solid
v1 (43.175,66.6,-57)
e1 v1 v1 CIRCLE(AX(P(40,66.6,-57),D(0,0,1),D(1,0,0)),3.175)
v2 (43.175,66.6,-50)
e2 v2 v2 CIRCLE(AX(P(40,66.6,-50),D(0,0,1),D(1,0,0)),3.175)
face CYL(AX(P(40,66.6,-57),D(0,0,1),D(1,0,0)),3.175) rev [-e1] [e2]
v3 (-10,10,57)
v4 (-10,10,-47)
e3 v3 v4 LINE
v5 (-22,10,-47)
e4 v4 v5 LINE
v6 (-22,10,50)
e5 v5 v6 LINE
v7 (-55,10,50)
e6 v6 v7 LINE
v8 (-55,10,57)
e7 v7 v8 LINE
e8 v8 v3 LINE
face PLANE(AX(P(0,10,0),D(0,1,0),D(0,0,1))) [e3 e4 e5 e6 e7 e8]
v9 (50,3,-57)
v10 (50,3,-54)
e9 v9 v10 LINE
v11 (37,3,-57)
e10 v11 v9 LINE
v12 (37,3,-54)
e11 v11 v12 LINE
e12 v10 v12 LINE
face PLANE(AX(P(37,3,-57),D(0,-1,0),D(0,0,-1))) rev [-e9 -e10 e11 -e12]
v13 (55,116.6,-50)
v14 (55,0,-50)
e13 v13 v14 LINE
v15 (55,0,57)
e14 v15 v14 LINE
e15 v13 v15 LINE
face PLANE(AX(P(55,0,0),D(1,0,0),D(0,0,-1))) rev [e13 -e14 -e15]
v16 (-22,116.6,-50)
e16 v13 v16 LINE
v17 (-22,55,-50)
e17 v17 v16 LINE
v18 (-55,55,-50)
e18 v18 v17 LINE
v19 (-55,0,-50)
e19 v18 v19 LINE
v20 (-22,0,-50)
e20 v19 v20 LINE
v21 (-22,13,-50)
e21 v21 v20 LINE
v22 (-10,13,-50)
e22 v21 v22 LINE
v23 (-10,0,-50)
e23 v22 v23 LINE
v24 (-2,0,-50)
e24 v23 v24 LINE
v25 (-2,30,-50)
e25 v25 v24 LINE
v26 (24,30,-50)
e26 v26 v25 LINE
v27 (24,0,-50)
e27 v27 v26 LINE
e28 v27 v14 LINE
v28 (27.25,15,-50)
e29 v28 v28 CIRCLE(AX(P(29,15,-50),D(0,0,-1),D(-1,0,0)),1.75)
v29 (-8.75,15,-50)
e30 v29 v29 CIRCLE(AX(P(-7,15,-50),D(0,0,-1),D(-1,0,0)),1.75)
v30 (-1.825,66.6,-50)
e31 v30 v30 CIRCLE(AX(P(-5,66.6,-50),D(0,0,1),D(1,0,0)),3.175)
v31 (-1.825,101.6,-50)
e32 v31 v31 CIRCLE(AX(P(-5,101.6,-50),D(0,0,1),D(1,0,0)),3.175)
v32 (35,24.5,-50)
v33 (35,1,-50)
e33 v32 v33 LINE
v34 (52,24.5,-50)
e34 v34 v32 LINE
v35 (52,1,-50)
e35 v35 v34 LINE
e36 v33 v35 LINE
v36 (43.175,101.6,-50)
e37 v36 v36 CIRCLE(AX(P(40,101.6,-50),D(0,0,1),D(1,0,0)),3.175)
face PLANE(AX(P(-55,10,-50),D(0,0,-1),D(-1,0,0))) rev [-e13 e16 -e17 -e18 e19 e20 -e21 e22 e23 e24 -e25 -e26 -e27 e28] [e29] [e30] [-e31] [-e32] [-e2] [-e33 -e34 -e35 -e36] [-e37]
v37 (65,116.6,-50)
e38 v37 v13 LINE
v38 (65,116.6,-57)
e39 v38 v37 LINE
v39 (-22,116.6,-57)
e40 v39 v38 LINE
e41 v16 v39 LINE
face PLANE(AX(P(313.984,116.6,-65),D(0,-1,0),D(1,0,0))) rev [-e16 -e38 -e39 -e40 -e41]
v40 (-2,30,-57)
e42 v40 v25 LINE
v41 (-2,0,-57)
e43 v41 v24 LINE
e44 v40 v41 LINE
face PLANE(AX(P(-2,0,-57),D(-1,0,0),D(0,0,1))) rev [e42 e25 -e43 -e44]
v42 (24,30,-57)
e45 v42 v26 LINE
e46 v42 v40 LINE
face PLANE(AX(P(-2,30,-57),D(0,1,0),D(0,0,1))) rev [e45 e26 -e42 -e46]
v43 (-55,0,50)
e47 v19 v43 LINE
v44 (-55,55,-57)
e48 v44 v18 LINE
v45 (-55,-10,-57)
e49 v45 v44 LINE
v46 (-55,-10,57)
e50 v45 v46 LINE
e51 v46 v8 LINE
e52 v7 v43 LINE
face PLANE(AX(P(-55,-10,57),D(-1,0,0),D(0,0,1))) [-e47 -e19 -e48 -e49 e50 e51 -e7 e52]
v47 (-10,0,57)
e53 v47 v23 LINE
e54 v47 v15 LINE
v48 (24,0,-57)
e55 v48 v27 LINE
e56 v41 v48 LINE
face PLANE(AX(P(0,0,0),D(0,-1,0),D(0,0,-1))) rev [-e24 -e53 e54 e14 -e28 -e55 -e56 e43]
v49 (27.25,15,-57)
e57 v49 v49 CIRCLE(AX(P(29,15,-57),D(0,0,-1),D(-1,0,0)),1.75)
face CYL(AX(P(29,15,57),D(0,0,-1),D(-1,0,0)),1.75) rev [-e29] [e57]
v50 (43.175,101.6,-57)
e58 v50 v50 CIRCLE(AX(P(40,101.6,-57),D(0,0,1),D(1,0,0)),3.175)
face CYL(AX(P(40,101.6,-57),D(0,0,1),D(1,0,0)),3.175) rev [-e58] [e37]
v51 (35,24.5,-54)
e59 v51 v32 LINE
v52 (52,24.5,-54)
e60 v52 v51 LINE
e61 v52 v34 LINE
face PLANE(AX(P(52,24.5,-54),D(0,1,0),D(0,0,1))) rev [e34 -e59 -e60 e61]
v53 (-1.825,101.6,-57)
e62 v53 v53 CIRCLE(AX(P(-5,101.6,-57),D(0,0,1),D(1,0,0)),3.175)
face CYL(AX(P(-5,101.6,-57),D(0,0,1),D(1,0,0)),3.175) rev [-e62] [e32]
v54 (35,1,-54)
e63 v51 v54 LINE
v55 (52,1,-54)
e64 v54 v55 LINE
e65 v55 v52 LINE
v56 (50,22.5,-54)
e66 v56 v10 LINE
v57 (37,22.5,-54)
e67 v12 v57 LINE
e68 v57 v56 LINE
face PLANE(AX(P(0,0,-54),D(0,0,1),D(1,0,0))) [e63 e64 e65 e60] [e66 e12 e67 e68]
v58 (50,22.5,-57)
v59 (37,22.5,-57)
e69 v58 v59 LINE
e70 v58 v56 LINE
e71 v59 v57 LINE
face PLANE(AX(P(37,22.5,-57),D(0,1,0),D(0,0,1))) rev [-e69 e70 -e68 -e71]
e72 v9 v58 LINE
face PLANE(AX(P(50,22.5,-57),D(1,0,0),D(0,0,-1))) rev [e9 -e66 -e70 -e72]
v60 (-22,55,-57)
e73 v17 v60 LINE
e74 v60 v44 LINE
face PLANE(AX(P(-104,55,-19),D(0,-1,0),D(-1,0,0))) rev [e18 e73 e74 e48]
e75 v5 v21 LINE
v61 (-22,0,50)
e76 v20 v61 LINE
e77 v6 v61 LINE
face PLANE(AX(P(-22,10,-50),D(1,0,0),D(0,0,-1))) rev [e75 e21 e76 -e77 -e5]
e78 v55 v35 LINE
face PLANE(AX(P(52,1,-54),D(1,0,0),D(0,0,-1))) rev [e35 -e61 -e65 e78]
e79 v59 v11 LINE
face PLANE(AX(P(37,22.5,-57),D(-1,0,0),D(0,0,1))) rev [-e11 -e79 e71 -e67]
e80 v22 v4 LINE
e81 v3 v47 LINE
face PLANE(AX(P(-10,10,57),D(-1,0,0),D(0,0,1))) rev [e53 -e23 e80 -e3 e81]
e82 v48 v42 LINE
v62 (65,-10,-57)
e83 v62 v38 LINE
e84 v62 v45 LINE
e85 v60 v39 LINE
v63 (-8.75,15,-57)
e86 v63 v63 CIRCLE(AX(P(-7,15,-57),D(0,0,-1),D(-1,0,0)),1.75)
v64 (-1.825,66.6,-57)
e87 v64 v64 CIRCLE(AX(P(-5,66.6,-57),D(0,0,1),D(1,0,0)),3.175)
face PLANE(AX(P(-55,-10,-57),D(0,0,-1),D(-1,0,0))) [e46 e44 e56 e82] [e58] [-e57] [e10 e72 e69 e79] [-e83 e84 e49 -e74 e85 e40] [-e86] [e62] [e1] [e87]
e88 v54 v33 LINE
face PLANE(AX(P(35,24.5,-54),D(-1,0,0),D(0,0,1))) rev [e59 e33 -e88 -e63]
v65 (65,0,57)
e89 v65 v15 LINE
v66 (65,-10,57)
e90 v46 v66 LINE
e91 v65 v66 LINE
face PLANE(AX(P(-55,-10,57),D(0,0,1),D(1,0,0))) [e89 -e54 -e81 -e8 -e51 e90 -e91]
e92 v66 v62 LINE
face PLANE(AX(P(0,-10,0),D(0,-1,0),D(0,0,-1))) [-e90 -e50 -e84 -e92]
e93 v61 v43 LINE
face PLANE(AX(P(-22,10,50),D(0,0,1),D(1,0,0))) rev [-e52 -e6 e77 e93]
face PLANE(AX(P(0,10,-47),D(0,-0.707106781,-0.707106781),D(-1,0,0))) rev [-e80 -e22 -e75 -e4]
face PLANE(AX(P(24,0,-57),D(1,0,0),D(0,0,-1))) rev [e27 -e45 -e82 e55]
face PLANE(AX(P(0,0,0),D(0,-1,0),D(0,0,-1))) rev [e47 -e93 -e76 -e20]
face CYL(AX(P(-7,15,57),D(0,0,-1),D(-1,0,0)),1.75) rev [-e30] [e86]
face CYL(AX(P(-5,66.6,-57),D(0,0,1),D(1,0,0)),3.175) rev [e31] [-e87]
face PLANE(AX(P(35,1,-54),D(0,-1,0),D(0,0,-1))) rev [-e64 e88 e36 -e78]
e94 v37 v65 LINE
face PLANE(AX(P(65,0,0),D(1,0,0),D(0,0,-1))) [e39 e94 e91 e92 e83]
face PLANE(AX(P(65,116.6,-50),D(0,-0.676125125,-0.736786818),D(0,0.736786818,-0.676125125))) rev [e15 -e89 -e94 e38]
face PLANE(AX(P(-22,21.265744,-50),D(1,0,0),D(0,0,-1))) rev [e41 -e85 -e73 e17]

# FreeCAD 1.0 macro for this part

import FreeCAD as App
import Part
import Sketcher


def edges_at(feature, points):
    """Names of the edges that pass closest to the given points."""
    edges = feature.Shape.Edges
    near = lambda p: min(range(len(edges)), key=lambda i: edges[i].distToShape(Part.Vertex(*p))[0])
    return sorted({f"Edge{near(p) + 1}" for p in points})


def add_polygon(sketch, points):
    """Adds a closed chain of lines whose ends are joined by coincident constraints."""
    first, n = sketch.GeometryCount, len(points)
    for a, b in zip(points, points[1:] + points[:1]):
        sketch.addGeometry(Part.LineSegment(App.Vector(*a, 0), App.Vector(*b, 0)), False)
    for i in range(n):
        sketch.addConstraint(Sketcher.Constraint("Coincident", first + i, 2, first + (i + 1) % n, 1))

doc = App.newDocument("Part")
params = doc.addObject("Spreadsheet::Sheet", "Params")
for row, (alias, value) in enumerate([
    ("sketch1_width", "110 mm"),
    ("sketch1_height", "114 mm"),
    ("pad1_length", "10 mm"),
    ("sketch2_width", "45 mm"),
    ("sketch2_width2", "33 mm"),
    ("sketch2_height", "7 mm"),
    ("sketch2_height2", "114 mm"),
    ("pad2_length", "10 mm"),
    ("sketch3_width", "110 mm"),
    ("sketch3_height", "7 mm"),
    ("pad3_length", "116.6 mm"),
    ("sketch4_width", "33 mm"),
    ("sketch4_height", "7 mm"),
    ("pocket1_length", "61.6 mm"),
    ("sketch5_width", "26 mm"),
    ("sketch5_height", "30 mm"),
    ("sketch6_width", "13 mm"),
    ("sketch6_height", "19.5 mm"),
    ("sketch7_width", "17 mm"),
    ("sketch7_height", "23.5 mm"),
    ("pocket4_length", "4 mm"),
    ("sketch8_diameter", "6.35 mm"),
    ("sketch9_width", "10 mm"),
    ("sketch9_height", "7 mm"),
    ("sketch9_height2", "114 mm"),
    ("sketch9_width2", "126.6 mm"),
    ("pad4_length", "10 mm"),
    ("sketch10_diameter", "3.5 mm"),
    ("chamfer_size", "3 mm"),
], start=1):
    params.set(f"A{row}", alias)
    params.set(f"B{row}", "=" + value)
    params.setAlias(f"B{row}", alias)

body = doc.addObject("PartDesign::Body", "Body")

# Sketch on XZ plane
sketch1 = body.newObject("Sketcher::SketchObject", "Sketch")
sketch1.AttachmentSupport = (doc.getObject("XZ_Plane"), [""])
sketch1.MapMode = "FlatFace"
add_polygon(sketch1, [(-55, -57), (-55, 57), (55, 57), (55, -57)])  # lines 0-3
sketch1.addConstraint([
    Sketcher.Constraint("Vertical", 0),
    Sketcher.Constraint("Horizontal", 1),
    Sketcher.Constraint("Vertical", 2),
    Sketcher.Constraint("Horizontal", 3),
    Sketcher.Constraint("Symmetric", 0, 2, 2, 2, -1, 1),
    Sketcher.Constraint("DistanceX", 1, 1, 1, 2, 110.0),
    Sketcher.Constraint("DistanceY", 0, 1, 0, 2, 114.0),
])
sketch1.setExpression("Constraints[9]", "Params.sketch1_width")
sketch1.setExpression("Constraints[10]", "Params.sketch1_height")
pad1 = body.newObject("PartDesign::Pad", "Pad")
pad1.Profile = sketch1
pad1.setExpression("Length", "Params.pad1_length")

# Sketch on XZ plane
sketch2 = body.newObject("Sketcher::SketchObject", "Sketch001")
sketch2.AttachmentSupport = (doc.getObject("XZ_Plane"), [""])
sketch2.MapMode = "FlatFace"
add_polygon(sketch2, [(-55, 50), (-55, 57), (-10, 57), (-10, -57), (-55, -57), (-55, -50), (-22, -50), (-22, 50)])  # lines 0-7
sketch2.addConstraint([
    Sketcher.Constraint("Vertical", 0),
    Sketcher.Constraint("Horizontal", 1),
    Sketcher.Constraint("Vertical", 2),
    Sketcher.Constraint("Horizontal", 3),
    Sketcher.Constraint("Vertical", 4),
    Sketcher.Constraint("Horizontal", 5),
    Sketcher.Constraint("Vertical", 6),
    Sketcher.Constraint("Horizontal", 7),
    Sketcher.Constraint("Symmetric", 0, 2, 3, 2, -1),
    Sketcher.Constraint("Equal", 0, 4),
    Sketcher.Constraint("DistanceX", 1, 1, 1, 2, 45.0),
    Sketcher.Constraint("DistanceX", 5, 1, 5, 2, 33.0),
    Sketcher.Constraint("DistanceY", 0, 1, 0, 2, 7.0),
    Sketcher.Constraint("DistanceY", 2, 2, 2, 1, 114.0),
    Sketcher.Constraint("DistanceX", 0, 2, -1, 1, 55.0),
])
sketch2.setExpression("Constraints[18]", "Params.sketch2_width")
sketch2.setExpression("Constraints[19]", "Params.sketch2_width2")
sketch2.setExpression("Constraints[20]", "Params.sketch2_height")
sketch2.setExpression("Constraints[21]", "Params.sketch2_height2")
pad2 = body.newObject("PartDesign::Pad", "Pad001")
pad2.Profile = sketch2
pad2.setExpression("Length", "Params.pad2_length")
pad2.Reversed = True

# Sketch on XZ plane
sketch3 = body.newObject("Sketcher::SketchObject", "Sketch002")
sketch3.AttachmentSupport = (doc.getObject("XZ_Plane"), [""])
sketch3.MapMode = "FlatFace"
add_polygon(sketch3, [(-55, -57), (-55, -50), (55, -50), (55, -57)])  # lines 0-3
sketch3.addConstraint([
    Sketcher.Constraint("Vertical", 0),
    Sketcher.Constraint("Horizontal", 1),
    Sketcher.Constraint("Vertical", 2),
    Sketcher.Constraint("Horizontal", 3),
    Sketcher.Constraint("DistanceX", 1, 1, 1, 2, 110.0),
    Sketcher.Constraint("DistanceY", 0, 1, 0, 2, 7.0),
    Sketcher.Constraint("DistanceX", 0, 2, -1, 1, 55.0),
    Sketcher.Constraint("DistanceY", 0, 2, -1, 1, 50.0),
])
sketch3.setExpression("Constraints[8]", "Params.sketch3_width")
sketch3.setExpression("Constraints[9]", "Params.sketch3_height")
pad3 = body.newObject("PartDesign::Pad", "Pad002")
pad3.Profile = sketch3
pad3.setExpression("Length", "Params.pad3_length")
pad3.Reversed = True

# Sketch on XZ plane
sketch4 = body.newObject("Sketcher::SketchObject", "Sketch003")
sketch4.AttachmentSupport = (doc.getObject("XZ_Plane"), [""])
sketch4.MapMode = "FlatFace"
sketch4.AttachmentOffset = App.Placement(App.Vector(0, 0, -116.6), App.Rotation())
add_polygon(sketch4, [(-55, -57), (-55, -50), (-22, -50), (-22, -57)])  # lines 0-3
sketch4.addConstraint([
    Sketcher.Constraint("Vertical", 0),
    Sketcher.Constraint("Horizontal", 1),
    Sketcher.Constraint("Vertical", 2),
    Sketcher.Constraint("Horizontal", 3),
    Sketcher.Constraint("DistanceX", 1, 1, 1, 2, 33.0),
    Sketcher.Constraint("DistanceY", 0, 1, 0, 2, 7.0),
    Sketcher.Constraint("DistanceX", 0, 2, -1, 1, 55.0),
    Sketcher.Constraint("DistanceY", 0, 2, -1, 1, 50.0),
])
sketch4.setExpression("Constraints[8]", "Params.sketch4_width")
sketch4.setExpression("Constraints[9]", "Params.sketch4_height")
pocket1 = body.newObject("PartDesign::Pocket", "Pocket")
pocket1.Profile = sketch4
pocket1.setExpression("Length", "Params.pocket1_length")
pocket1.Reversed = True

# Sketch on XY plane
sketch5 = body.newObject("Sketcher::SketchObject", "Sketch004")
sketch5.AttachmentSupport = (doc.getObject("XY_Plane"), [""])
sketch5.MapMode = "FlatFace"
sketch5.AttachmentOffset = App.Placement(App.Vector(0, 0, -50), App.Rotation())
add_polygon(sketch5, [(-2, 30), (-2, 0), (24, 0), (24, 30)])  # lines 0-3
sketch5.addConstraint([
    Sketcher.Constraint("Vertical", 0),
    Sketcher.Constraint("Horizontal", 1),
    Sketcher.Constraint("Vertical", 2),
    Sketcher.Constraint("Horizontal", 3),
    Sketcher.Constraint("PointOnObject", 0, 2, -1),
    Sketcher.Constraint("DistanceX", 1, 1, 1, 2, 26.0),
    Sketcher.Constraint("DistanceY", 0, 2, 0, 1, 30.0),
    Sketcher.Constraint("DistanceX", 0, 2, -1, 1, 2.0),
])
sketch5.setExpression("Constraints[9]", "Params.sketch5_width")
sketch5.setExpression("Constraints[10]", "Params.sketch5_height")
pocket2 = body.newObject("PartDesign::Pocket", "Pocket001")
pocket2.Profile = sketch5
pocket2.Type = "ThroughAll"

# Sketch on XY plane
sketch6 = body.newObject("Sketcher::SketchObject", "Sketch005")
sketch6.AttachmentSupport = (doc.getObject("XY_Plane"), [""])
sketch6.MapMode = "FlatFace"
sketch6.AttachmentOffset = App.Placement(App.Vector(0, 0, -50), App.Rotation())
add_polygon(sketch6, [(37, 22), (37, 3), (50, 3), (50, 22)])  # lines 0-3
sketch6.addConstraint([
    Sketcher.Constraint("Vertical", 0),
    Sketcher.Constraint("Horizontal", 1),
    Sketcher.Constraint("Vertical", 2),
    Sketcher.Constraint("Horizontal", 3),
    Sketcher.Constraint("DistanceX", 1, 1, 1, 2, 13.0),
    Sketcher.Constraint("DistanceY", 0, 2, 0, 1, 19.5),
    Sketcher.Constraint("DistanceX", -1, 1, 0, 2, 37.0),
    Sketcher.Constraint("DistanceY", -1, 1, 0, 2, 3.0),
])
sketch6.setExpression("Constraints[8]", "Params.sketch6_width")
sketch6.setExpression("Constraints[9]", "Params.sketch6_height")
pocket3 = body.newObject("PartDesign::Pocket", "Pocket002")
pocket3.Profile = sketch6
pocket3.Type = "ThroughAll"

# Sketch on XY plane
sketch7 = body.newObject("Sketcher::SketchObject", "Sketch006")
sketch7.AttachmentSupport = (doc.getObject("XY_Plane"), [""])
sketch7.MapMode = "FlatFace"
sketch7.AttachmentOffset = App.Placement(App.Vector(0, 0, -50), App.Rotation())
add_polygon(sketch7, [(35, 24), (35, 1), (52, 1), (52, 24)])  # lines 0-3
sketch7.addConstraint([
    Sketcher.Constraint("Vertical", 0),
    Sketcher.Constraint("Horizontal", 1),
    Sketcher.Constraint("Vertical", 2),
    Sketcher.Constraint("Horizontal", 3),
    Sketcher.Constraint("DistanceX", 1, 1, 1, 2, 17.0),
    Sketcher.Constraint("DistanceY", 0, 2, 0, 1, 23.5),
    Sketcher.Constraint("DistanceX", -1, 1, 0, 2, 35.0),
    Sketcher.Constraint("DistanceY", -1, 1, 0, 2, 1.0),
])
sketch7.setExpression("Constraints[8]", "Params.sketch7_width")
sketch7.setExpression("Constraints[9]", "Params.sketch7_height")
pocket4 = body.newObject("PartDesign::Pocket", "Pocket003")
pocket4.Profile = sketch7
pocket4.setExpression("Length", "Params.pocket4_length")

# Sketch on XY plane
sketch8 = body.newObject("Sketcher::SketchObject", "Sketch007")
sketch8.AttachmentSupport = (doc.getObject("XY_Plane"), [""])
sketch8.MapMode = "FlatFace"
sketch8.AttachmentOffset = App.Placement(App.Vector(0, 0, -50), App.Rotation())
sketch8.addGeometry([
    Part.Circle(App.Vector(-5, 101.6, 0), App.Vector(0, 0, 1), 3.2),
    Part.Circle(App.Vector(40, 101.6, 0), App.Vector(0, 0, 1), 3.2),
    Part.Circle(App.Vector(-5, 66.6, 0), App.Vector(0, 0, 1), 3.2),
    Part.Circle(App.Vector(40, 66.6, 0), App.Vector(0, 0, 1), 3.2),
], False)
sketch8.addConstraint([
    Sketcher.Constraint("Equal", 0, 1),
    Sketcher.Constraint("Equal", 1, 2),
    Sketcher.Constraint("Equal", 2, 3),
    Sketcher.Constraint("Horizontal", 0, 3, 1, 3),
    Sketcher.Constraint("Horizontal", 2, 3, 3, 3),
    Sketcher.Constraint("Vertical", 0, 3, 2, 3),
    Sketcher.Constraint("Vertical", 1, 3, 3, 3),
    Sketcher.Constraint("Diameter", 0, 6.35),
    Sketcher.Constraint("DistanceX", 0, 3, -1, 1, 5.0),
    Sketcher.Constraint("DistanceX", -1, 1, 1, 3, 40.0),
    Sketcher.Constraint("DistanceY", 2, 3, 0, 3, 35.0),
    Sketcher.Constraint("DistanceY", -1, 1, 0, 3, 101.6),
])
sketch8.setExpression("Constraints[7]", "Params.sketch8_diameter")
pocket5 = body.newObject("PartDesign::Pocket", "Pocket004")
pocket5.Profile = sketch8
pocket5.Type = "ThroughAll"

# Sketch on YZ plane
sketch9 = body.newObject("Sketcher::SketchObject", "Sketch008")
sketch9.AttachmentSupport = (doc.getObject("YZ_Plane"), [""])
sketch9.MapMode = "FlatFace"
sketch9.AttachmentOffset = App.Placement(App.Vector(0, 0, 55), App.Rotation())
add_polygon(sketch9, [(117, -57), (117, -50), (0, 57), (-10, 57), (-10, -57)])  # lines 0-4
sketch9.addConstraint([
    Sketcher.Constraint("Vertical", 0),
    Sketcher.Constraint("Horizontal", 2),
    Sketcher.Constraint("Vertical", 3),
    Sketcher.Constraint("Horizontal", 4),
    Sketcher.Constraint("PointOnObject", 1, 2, -2),
    Sketcher.Constraint("DistanceX", 2, 2, 2, 1, 10.0),
    Sketcher.Constraint("DistanceY", 0, 1, 0, 2, 7.0),
    Sketcher.Constraint("DistanceY", 3, 2, 3, 1, 114.0),
    Sketcher.Constraint("DistanceX", 4, 1, 4, 2, 126.6),
    Sketcher.Constraint("DistanceY", 0, 2, -1, 1, 50.0),
])
sketch9.setExpression("Constraints[10]", "Params.sketch9_width")
sketch9.setExpression("Constraints[11]", "Params.sketch9_height")
sketch9.setExpression("Constraints[12]", "Params.sketch9_height2")
sketch9.setExpression("Constraints[13]", "Params.sketch9_width2")
pad4 = body.newObject("PartDesign::Pad", "Pad003")
pad4.Profile = sketch9
pad4.setExpression("Length", "Params.pad4_length")

# Sketch on XY plane
sketch10 = body.newObject("Sketcher::SketchObject", "Sketch009")
sketch10.AttachmentSupport = (doc.getObject("XY_Plane"), [""])
sketch10.MapMode = "FlatFace"
sketch10.AttachmentOffset = App.Placement(App.Vector(0, 0, -57), App.Rotation())
sketch10.addGeometry([
    Part.Circle(App.Vector(29, 15, 0), App.Vector(0, 0, 1), 1.8),
    Part.Circle(App.Vector(-7, 15, 0), App.Vector(0, 0, 1), 1.8),
], False)
sketch10.addConstraint([
    Sketcher.Constraint("Equal", 0, 1),
    Sketcher.Constraint("Horizontal", 0, 3, 1, 3),
    Sketcher.Constraint("Diameter", 0, 3.5),
    Sketcher.Constraint("DistanceX", -1, 1, 0, 3, 29.0),
    Sketcher.Constraint("DistanceY", -1, 1, 0, 3, 15.0),
    Sketcher.Constraint("DistanceX", 1, 3, -1, 1, 7.0),
])
sketch10.setExpression("Constraints[2]", "Params.sketch10_diameter")
pocket6 = body.newObject("PartDesign::Pocket", "Pocket005")
pocket6.Profile = sketch10
pocket6.Type = "ThroughAll"
pocket6.Reversed = True
doc.recompute()

chamfer = body.newObject("PartDesign::Chamfer", "Chamfer")
chamfer.Base = (pocket6, edges_at(pocket6, [(-16, 10, -50)]))
chamfer.setExpression("Size", "Params.chamfer_size")

doc.recompute()
